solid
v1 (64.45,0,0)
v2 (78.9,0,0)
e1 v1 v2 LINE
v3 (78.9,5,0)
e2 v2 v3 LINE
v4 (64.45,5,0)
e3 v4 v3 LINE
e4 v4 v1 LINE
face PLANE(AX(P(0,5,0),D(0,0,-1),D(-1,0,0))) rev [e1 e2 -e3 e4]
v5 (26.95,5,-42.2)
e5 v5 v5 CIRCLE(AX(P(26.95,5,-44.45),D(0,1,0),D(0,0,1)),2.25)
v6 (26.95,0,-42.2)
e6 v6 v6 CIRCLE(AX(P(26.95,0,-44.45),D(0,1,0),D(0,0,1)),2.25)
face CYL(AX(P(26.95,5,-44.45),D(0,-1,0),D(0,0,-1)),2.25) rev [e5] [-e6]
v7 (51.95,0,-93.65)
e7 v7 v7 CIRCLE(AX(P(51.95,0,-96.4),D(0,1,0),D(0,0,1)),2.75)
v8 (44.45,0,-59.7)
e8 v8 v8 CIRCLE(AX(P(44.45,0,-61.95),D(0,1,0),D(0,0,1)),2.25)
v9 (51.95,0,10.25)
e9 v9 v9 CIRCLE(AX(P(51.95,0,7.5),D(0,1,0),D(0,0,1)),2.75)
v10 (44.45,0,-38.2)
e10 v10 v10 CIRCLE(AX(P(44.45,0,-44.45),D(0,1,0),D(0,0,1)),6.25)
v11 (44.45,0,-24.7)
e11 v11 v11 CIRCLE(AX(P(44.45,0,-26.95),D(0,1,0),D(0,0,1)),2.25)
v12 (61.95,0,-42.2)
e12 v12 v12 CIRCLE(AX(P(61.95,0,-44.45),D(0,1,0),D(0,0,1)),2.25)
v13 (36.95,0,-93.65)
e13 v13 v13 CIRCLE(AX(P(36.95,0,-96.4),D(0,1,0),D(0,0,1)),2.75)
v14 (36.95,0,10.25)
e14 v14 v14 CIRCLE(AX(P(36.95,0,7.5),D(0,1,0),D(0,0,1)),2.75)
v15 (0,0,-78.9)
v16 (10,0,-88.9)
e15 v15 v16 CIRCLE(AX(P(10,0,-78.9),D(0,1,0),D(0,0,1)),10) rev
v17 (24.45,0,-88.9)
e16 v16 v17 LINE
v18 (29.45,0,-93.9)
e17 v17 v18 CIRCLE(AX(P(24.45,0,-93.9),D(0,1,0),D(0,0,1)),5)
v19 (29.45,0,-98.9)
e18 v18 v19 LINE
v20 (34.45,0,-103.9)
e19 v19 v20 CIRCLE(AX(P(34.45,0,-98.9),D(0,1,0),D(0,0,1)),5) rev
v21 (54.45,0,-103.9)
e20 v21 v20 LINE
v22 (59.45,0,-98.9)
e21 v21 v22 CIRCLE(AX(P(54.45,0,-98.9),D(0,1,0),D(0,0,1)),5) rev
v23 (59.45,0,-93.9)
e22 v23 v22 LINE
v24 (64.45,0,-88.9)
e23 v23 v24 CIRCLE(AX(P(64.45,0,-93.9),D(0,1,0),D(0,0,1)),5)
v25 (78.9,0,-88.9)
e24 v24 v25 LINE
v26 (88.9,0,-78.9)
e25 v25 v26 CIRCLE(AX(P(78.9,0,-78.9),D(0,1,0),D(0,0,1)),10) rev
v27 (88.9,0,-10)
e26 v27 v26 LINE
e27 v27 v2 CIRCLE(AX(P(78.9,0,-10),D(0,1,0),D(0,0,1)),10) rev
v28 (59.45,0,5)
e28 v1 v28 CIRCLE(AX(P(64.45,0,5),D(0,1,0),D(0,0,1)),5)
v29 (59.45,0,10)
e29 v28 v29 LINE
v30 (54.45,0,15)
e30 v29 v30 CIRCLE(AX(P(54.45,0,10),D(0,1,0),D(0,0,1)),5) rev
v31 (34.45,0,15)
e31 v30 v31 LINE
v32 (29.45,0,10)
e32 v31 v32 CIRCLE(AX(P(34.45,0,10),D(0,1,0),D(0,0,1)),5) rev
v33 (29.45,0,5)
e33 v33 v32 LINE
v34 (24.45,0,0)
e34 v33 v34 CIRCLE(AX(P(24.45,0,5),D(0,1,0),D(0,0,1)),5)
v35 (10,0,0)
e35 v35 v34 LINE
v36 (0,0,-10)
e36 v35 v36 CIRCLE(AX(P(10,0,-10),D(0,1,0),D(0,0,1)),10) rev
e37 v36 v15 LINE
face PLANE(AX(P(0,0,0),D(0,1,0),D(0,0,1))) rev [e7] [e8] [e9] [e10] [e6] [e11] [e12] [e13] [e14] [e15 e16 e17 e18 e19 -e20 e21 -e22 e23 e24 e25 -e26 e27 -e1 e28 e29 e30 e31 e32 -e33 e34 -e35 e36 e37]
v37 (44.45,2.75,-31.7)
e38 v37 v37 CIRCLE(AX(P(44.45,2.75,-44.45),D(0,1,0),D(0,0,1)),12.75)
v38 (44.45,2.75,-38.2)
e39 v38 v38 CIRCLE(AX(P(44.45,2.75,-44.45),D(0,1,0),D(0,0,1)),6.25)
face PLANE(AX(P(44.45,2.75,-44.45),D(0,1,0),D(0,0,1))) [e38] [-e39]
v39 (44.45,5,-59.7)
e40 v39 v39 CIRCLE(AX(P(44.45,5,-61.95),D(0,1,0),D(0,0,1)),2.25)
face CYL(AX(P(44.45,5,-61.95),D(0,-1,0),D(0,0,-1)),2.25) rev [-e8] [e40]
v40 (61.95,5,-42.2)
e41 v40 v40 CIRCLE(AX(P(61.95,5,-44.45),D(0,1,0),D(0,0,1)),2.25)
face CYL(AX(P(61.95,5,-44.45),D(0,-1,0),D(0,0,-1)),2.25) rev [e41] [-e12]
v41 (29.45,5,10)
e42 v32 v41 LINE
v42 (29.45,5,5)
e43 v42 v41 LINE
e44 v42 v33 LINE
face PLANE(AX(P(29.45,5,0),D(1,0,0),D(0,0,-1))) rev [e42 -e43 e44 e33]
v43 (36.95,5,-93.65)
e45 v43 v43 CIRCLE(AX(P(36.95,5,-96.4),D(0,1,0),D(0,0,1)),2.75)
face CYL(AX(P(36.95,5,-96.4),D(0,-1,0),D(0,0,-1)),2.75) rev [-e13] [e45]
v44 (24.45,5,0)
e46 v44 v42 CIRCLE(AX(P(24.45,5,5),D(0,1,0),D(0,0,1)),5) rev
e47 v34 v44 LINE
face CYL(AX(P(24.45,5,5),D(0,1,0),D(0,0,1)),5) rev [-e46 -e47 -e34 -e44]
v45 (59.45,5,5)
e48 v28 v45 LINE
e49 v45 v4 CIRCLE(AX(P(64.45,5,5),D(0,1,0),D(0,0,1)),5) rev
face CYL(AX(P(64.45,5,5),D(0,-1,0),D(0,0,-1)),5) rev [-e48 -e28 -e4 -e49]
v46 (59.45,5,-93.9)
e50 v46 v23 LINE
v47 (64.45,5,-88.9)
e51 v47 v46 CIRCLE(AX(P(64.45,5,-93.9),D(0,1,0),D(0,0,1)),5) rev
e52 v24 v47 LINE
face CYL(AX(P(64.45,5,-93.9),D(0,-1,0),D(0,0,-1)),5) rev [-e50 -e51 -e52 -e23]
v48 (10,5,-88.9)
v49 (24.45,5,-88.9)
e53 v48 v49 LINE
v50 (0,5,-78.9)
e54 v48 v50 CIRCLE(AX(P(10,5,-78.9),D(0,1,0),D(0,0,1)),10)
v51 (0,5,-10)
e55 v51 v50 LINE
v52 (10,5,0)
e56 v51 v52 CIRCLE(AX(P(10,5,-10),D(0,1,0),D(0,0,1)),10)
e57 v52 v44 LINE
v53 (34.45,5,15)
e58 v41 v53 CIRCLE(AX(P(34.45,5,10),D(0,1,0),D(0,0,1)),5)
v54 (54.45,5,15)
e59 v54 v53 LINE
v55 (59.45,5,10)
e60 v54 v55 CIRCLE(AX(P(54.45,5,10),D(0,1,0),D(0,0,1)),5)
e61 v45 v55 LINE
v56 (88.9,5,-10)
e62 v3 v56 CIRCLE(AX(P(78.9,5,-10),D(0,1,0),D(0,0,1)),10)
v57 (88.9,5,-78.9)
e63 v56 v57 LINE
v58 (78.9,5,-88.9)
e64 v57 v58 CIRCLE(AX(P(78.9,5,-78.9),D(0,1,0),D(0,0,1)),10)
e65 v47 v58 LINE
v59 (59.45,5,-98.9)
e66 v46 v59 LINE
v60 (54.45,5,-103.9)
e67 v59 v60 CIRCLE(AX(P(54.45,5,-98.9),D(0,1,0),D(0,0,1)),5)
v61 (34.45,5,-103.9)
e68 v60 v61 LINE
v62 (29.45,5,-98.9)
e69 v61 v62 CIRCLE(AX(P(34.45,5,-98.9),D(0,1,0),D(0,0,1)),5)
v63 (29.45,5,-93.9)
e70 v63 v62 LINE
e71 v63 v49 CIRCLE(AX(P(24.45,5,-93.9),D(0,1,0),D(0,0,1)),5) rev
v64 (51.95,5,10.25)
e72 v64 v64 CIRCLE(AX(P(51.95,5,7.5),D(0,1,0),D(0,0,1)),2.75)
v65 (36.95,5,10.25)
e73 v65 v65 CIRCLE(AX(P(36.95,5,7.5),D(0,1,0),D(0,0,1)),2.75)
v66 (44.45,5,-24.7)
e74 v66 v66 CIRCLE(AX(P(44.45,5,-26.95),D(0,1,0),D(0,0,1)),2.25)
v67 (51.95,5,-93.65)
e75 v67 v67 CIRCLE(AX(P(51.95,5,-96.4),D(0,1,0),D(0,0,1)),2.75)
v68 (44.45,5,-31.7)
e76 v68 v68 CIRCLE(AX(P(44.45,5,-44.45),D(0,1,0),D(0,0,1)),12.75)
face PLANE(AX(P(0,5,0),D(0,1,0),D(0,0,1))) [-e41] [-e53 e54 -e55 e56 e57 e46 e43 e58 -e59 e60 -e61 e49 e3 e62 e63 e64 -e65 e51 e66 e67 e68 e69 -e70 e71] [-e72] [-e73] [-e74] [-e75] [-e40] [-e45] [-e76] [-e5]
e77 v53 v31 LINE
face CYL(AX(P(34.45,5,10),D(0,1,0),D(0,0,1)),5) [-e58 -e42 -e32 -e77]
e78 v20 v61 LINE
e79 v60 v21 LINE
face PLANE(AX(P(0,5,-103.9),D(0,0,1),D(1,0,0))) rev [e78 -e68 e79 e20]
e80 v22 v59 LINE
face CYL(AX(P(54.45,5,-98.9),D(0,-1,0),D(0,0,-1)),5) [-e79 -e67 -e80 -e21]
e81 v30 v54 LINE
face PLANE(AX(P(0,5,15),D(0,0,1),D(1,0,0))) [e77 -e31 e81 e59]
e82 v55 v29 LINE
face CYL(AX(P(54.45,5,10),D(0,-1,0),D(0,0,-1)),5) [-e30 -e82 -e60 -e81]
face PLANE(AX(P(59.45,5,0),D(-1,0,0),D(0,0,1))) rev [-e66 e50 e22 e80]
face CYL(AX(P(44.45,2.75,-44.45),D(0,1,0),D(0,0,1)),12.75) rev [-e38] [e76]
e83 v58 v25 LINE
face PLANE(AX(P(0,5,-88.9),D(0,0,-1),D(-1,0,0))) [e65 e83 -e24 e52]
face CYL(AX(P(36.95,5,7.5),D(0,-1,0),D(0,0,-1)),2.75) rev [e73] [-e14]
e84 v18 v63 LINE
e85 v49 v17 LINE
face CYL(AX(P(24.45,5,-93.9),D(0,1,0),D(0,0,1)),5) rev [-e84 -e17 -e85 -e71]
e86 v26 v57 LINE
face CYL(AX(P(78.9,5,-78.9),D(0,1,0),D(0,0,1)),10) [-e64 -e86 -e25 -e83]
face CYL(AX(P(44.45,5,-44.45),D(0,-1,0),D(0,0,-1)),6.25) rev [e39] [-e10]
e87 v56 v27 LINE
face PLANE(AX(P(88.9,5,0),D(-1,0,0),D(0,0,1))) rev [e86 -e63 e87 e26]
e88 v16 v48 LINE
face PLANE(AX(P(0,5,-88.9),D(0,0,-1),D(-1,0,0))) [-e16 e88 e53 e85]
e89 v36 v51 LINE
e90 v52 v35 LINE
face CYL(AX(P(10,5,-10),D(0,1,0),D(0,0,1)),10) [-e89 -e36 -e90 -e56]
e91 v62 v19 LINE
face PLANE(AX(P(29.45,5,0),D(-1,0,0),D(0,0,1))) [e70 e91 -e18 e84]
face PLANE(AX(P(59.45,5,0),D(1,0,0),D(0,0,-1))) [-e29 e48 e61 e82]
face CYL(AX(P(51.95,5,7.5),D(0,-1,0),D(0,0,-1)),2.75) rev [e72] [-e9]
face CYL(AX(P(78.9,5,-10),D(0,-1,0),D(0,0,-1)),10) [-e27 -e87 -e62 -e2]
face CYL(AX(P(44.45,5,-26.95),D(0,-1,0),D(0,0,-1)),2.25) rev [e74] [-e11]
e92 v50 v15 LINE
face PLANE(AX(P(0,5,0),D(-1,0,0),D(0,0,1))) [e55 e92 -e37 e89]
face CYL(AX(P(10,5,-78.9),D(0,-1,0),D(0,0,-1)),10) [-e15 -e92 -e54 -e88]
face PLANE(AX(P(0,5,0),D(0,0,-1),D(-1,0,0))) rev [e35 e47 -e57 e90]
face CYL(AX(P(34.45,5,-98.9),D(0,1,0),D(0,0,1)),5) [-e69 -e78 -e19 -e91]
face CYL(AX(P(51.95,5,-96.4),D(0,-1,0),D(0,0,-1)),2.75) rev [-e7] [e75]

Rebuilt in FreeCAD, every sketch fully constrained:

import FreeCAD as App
import Part
import Sketcher
from FreeCAD import Vector


def edges_at(feature, points):
    """Names of the edges that pass closest to the given points."""
    edges = feature.Shape.Edges
    near = lambda p: min(range(len(edges)), key=lambda i: edges[i].distToShape(Part.Vertex(*p))[0])
    return sorted({f"Edge{near(p) + 1}" for p in points})


def add_polygon(sketch, points):
    """Adds a closed chain of lines whose ends are joined by coincident constraints."""
    first, n = sketch.GeometryCount, len(points)
    for a, b in zip(points, points[1:] + points[:1]):
        sketch.addGeometry(Part.LineSegment(App.Vector(*a, 0), App.Vector(*b, 0)), False)
    for i in range(n):
        sketch.addConstraint(Sketcher.Constraint("Coincident", first + i, 2, first + (i + 1) % n, 1))

doc = App.newDocument("Part")
body = doc.addObject("PartDesign::Body", "Body")

sketch1 = body.newObject("Sketcher::SketchObject", "Sketch")
sketch1.AttachmentSupport = (doc.getObject("XZ_Plane"), [""])
sketch1.MapMode = "FlatFace"
add_polygon(sketch1, [(0, -88.9), (0, 0), (29.4, 0), (29.4, 15), (59.5, 15), (59.5, 0), (88.9, 0), (88.9, -88.9), (59.5, -88.9), (59.5, -103.9), (29.4, -103.9), (29.4, -88.9)])
sketch1.addGeometry(Part.Circle(Vector(37, 7.5, 0), Vector(0, 0, 1), 2.8), False)
sketch1.addGeometry(Part.Circle(Vector(52, 7.5, 0), Vector(0, 0, 1), 2.8), False)
sketch1.addGeometry(Part.Circle(Vector(44.5, -26.9, 0), Vector(0, 0, 1), 2.2), False)
sketch1.addGeometry(Part.Circle(Vector(26.9, -44.5, 0), Vector(0, 0, 1), 2.2), False)
sketch1.addGeometry(Part.Circle(Vector(37, -96.4, 0), Vector(0, 0, 1), 2.8), False)
sketch1.addGeometry(Part.Circle(Vector(44.5, -44.5, 0), Vector(0, 0, 1), 6.2), False)
sketch1.addGeometry(Part.Circle(Vector(44.5, -62, 0), Vector(0, 0, 1), 2.2), False)
sketch1.addGeometry(Part.Circle(Vector(62, -44.5, 0), Vector(0, 0, 1), 2.2), False)
sketch1.addGeometry(Part.Circle(Vector(52, -96.4, 0), Vector(0, 0, 1), 2.8), False)
sketch1.addConstraint(Sketcher.Constraint("Vertical", 0))
sketch1.addConstraint(Sketcher.Constraint("Horizontal", 1))
sketch1.addConstraint(Sketcher.Constraint("Vertical", 2))
sketch1.addConstraint(Sketcher.Constraint("Horizontal", 3))
sketch1.addConstraint(Sketcher.Constraint("Vertical", 4))
sketch1.addConstraint(Sketcher.Constraint("Horizontal", 5))
sketch1.addConstraint(Sketcher.Constraint("Vertical", 6))
sketch1.addConstraint(Sketcher.Constraint("Horizontal", 7))
sketch1.addConstraint(Sketcher.Constraint("Vertical", 8))
sketch1.addConstraint(Sketcher.Constraint("Horizontal", 9))
sketch1.addConstraint(Sketcher.Constraint("Vertical", 10))
sketch1.addConstraint(Sketcher.Constraint("Horizontal", 11))
sketch1.addConstraint(Sketcher.Constraint("Coincident", 0, 2, -1, 1))
sketch1.addConstraint(Sketcher.Constraint("Equal", 12, 13))
sketch1.addConstraint(Sketcher.Constraint("Equal", 14, 15))
sketch1.addConstraint(Sketcher.Constraint("Equal", 13, 16))
sketch1.addConstraint(Sketcher.Constraint("Equal", 15, 18))
sketch1.addConstraint(Sketcher.Constraint("Equal", 18, 19))
sketch1.addConstraint(Sketcher.Constraint("Equal", 16, 20))
sketch1.addConstraint(Sketcher.Constraint("PointOnObject", 4, 2, -1))
sketch1.addConstraint(Sketcher.Constraint("Horizontal", 12, 3, 13, 3))
sketch1.addConstraint(Sketcher.Constraint("Horizontal", 15, 3, 17, 3))
sketch1.addConstraint(Sketcher.Constraint("Horizontal", 17, 3, 19, 3))
sketch1.addConstraint(Sketcher.Constraint("Horizontal", 16, 3, 20, 3))
sketch1.addConstraint(Sketcher.Constraint("Horizontal", 7, 2, 10, 2))
sketch1.addConstraint(Sketcher.Constraint("Vertical", 12, 3, 16, 3))
sketch1.addConstraint(Sketcher.Constraint("Vertical", 14, 3, 17, 3))
sketch1.addConstraint(Sketcher.Constraint("Vertical", 17, 3, 18, 3))
sketch1.addConstraint(Sketcher.Constraint("Vertical", 13, 3, 20, 3))
sketch1.addConstraint(Sketcher.Constraint("Vertical", 4, 2, 7, 2))
sketch1.addConstraint(Sketcher.Constraint("Vertical", 2, 2, 9, 2))
sketch1.addConstraint(Sketcher.Constraint("Equal", 1, 5))
sketch1.addConstraint(Sketcher.Constraint("Equal", 4, 8))
sketch1.addConstraint(Sketcher.Constraint("Diameter", 12, 5.5))
sketch1.addConstraint(Sketcher.Constraint("Diameter", 14, 4.5))
sketch1.addConstraint(Sketcher.Constraint("Diameter", 17, 12.5))
sketch1.addConstraint(Sketcher.Constraint("DistanceX", 3, 1, 3, 2, 30.0))
sketch1.addConstraint(Sketcher.Constraint("DistanceY", 2, 1, 2, 2, 15.0))
sketch1.addConstraint(Sketcher.Constraint("DistanceY", 0, 1, 0, 2, 88.9))
sketch1.addConstraint(Sketcher.Constraint("DistanceX", 12, 3, 13, 3, 15.0))
sketch1.addConstraint(Sketcher.Constraint("DistanceX", 15, 3, 12, 3, 10.0))
sketch1.addConstraint(Sketcher.Constraint("DistanceY", 18, 3, 14, 3, 35.0))
sketch1.addConstraint(Sketcher.Constraint("DistanceX", 15, 3, 19, 3, 35.0))
sketch1.addConstraint(Sketcher.Constraint("DistanceX", 1, 2, 14, 3, 15.0))
sketch1.addConstraint(Sketcher.Constraint("DistanceX", 1, 1, 1, 2, 29.45))
sketch1.addConstraint(Sketcher.Constraint("DistanceY", -1, 1, 12, 3, 7.5))
sketch1.addConstraint(Sketcher.Constraint("DistanceY", 16, 3, -1, 1, 96.4))
sketch1.addConstraint(Sketcher.Constraint("DistanceX", 12, 3, 14, 3, 7.5))
sketch1.addConstraint(Sketcher.Constraint("DistanceY", 15, 3, 14, 3, 17.5))
sketch1.addConstraint(Sketcher.Constraint("DistanceY", 14, 3, -1, 1, 26.95))
pad1 = body.newObject("PartDesign::Pad", "Pad")
pad1.Profile = sketch1
pad1.Length = 5
pad1.Reversed = True
doc.recompute()

fillet = body.newObject("PartDesign::Fillet", "Fillet")
fillet.Base = (pad1, edges_at(pad1, [
    (0, 2.5, 0),
    (0, 2.5, -88.9),
    (88.9, 2.5, -88.9),
    (88.9, 2.5, 0),
]))
fillet.Radius = 10
doc.recompute()

fillet2 = body.newObject("PartDesign::Fillet", "Fillet001")
fillet2.Base = (fillet, edges_at(fillet, [
    (29.45, 2.5, 15),
    (29.45, 2.5, 0),
    (29.45, 2.5, -88.9),
    (29.45, 2.5, -103.9),
    (59.45, 2.5, -103.9),
    (59.45, 2.5, -88.9),
    (59.45, 2.5, 0),
    (59.45, 2.5, 15),
]))
fillet2.Radius = 5

sketch2 = body.newObject("Sketcher::SketchObject", "Sketch001")
sketch2.AttachmentSupport = (doc.getObject("XZ_Plane"), [""])
sketch2.MapMode = "FlatFace"
sketch2.AttachmentOffset = App.Placement(Vector(0, 0, -5), App.Rotation())
sketch2.addGeometry(Part.Circle(Vector(44, -44, 0), Vector(0, 0, 1), 13), False)
sketch2.addConstraint(Sketcher.Constraint("Diameter", 0, 25.5))
sketch2.addConstraint(Sketcher.Constraint("DistanceX", -1, 1, 0, 3, 44.45))
sketch2.addConstraint(Sketcher.Constraint("DistanceY", 0, 3, -1, 1, 44.45))
pocket1 = body.newObject("PartDesign::Pocket", "Pocket")
pocket1.Profile = sketch2
pocket1.Length = 2.25
pocket1.Reversed = True

doc.recompute()
